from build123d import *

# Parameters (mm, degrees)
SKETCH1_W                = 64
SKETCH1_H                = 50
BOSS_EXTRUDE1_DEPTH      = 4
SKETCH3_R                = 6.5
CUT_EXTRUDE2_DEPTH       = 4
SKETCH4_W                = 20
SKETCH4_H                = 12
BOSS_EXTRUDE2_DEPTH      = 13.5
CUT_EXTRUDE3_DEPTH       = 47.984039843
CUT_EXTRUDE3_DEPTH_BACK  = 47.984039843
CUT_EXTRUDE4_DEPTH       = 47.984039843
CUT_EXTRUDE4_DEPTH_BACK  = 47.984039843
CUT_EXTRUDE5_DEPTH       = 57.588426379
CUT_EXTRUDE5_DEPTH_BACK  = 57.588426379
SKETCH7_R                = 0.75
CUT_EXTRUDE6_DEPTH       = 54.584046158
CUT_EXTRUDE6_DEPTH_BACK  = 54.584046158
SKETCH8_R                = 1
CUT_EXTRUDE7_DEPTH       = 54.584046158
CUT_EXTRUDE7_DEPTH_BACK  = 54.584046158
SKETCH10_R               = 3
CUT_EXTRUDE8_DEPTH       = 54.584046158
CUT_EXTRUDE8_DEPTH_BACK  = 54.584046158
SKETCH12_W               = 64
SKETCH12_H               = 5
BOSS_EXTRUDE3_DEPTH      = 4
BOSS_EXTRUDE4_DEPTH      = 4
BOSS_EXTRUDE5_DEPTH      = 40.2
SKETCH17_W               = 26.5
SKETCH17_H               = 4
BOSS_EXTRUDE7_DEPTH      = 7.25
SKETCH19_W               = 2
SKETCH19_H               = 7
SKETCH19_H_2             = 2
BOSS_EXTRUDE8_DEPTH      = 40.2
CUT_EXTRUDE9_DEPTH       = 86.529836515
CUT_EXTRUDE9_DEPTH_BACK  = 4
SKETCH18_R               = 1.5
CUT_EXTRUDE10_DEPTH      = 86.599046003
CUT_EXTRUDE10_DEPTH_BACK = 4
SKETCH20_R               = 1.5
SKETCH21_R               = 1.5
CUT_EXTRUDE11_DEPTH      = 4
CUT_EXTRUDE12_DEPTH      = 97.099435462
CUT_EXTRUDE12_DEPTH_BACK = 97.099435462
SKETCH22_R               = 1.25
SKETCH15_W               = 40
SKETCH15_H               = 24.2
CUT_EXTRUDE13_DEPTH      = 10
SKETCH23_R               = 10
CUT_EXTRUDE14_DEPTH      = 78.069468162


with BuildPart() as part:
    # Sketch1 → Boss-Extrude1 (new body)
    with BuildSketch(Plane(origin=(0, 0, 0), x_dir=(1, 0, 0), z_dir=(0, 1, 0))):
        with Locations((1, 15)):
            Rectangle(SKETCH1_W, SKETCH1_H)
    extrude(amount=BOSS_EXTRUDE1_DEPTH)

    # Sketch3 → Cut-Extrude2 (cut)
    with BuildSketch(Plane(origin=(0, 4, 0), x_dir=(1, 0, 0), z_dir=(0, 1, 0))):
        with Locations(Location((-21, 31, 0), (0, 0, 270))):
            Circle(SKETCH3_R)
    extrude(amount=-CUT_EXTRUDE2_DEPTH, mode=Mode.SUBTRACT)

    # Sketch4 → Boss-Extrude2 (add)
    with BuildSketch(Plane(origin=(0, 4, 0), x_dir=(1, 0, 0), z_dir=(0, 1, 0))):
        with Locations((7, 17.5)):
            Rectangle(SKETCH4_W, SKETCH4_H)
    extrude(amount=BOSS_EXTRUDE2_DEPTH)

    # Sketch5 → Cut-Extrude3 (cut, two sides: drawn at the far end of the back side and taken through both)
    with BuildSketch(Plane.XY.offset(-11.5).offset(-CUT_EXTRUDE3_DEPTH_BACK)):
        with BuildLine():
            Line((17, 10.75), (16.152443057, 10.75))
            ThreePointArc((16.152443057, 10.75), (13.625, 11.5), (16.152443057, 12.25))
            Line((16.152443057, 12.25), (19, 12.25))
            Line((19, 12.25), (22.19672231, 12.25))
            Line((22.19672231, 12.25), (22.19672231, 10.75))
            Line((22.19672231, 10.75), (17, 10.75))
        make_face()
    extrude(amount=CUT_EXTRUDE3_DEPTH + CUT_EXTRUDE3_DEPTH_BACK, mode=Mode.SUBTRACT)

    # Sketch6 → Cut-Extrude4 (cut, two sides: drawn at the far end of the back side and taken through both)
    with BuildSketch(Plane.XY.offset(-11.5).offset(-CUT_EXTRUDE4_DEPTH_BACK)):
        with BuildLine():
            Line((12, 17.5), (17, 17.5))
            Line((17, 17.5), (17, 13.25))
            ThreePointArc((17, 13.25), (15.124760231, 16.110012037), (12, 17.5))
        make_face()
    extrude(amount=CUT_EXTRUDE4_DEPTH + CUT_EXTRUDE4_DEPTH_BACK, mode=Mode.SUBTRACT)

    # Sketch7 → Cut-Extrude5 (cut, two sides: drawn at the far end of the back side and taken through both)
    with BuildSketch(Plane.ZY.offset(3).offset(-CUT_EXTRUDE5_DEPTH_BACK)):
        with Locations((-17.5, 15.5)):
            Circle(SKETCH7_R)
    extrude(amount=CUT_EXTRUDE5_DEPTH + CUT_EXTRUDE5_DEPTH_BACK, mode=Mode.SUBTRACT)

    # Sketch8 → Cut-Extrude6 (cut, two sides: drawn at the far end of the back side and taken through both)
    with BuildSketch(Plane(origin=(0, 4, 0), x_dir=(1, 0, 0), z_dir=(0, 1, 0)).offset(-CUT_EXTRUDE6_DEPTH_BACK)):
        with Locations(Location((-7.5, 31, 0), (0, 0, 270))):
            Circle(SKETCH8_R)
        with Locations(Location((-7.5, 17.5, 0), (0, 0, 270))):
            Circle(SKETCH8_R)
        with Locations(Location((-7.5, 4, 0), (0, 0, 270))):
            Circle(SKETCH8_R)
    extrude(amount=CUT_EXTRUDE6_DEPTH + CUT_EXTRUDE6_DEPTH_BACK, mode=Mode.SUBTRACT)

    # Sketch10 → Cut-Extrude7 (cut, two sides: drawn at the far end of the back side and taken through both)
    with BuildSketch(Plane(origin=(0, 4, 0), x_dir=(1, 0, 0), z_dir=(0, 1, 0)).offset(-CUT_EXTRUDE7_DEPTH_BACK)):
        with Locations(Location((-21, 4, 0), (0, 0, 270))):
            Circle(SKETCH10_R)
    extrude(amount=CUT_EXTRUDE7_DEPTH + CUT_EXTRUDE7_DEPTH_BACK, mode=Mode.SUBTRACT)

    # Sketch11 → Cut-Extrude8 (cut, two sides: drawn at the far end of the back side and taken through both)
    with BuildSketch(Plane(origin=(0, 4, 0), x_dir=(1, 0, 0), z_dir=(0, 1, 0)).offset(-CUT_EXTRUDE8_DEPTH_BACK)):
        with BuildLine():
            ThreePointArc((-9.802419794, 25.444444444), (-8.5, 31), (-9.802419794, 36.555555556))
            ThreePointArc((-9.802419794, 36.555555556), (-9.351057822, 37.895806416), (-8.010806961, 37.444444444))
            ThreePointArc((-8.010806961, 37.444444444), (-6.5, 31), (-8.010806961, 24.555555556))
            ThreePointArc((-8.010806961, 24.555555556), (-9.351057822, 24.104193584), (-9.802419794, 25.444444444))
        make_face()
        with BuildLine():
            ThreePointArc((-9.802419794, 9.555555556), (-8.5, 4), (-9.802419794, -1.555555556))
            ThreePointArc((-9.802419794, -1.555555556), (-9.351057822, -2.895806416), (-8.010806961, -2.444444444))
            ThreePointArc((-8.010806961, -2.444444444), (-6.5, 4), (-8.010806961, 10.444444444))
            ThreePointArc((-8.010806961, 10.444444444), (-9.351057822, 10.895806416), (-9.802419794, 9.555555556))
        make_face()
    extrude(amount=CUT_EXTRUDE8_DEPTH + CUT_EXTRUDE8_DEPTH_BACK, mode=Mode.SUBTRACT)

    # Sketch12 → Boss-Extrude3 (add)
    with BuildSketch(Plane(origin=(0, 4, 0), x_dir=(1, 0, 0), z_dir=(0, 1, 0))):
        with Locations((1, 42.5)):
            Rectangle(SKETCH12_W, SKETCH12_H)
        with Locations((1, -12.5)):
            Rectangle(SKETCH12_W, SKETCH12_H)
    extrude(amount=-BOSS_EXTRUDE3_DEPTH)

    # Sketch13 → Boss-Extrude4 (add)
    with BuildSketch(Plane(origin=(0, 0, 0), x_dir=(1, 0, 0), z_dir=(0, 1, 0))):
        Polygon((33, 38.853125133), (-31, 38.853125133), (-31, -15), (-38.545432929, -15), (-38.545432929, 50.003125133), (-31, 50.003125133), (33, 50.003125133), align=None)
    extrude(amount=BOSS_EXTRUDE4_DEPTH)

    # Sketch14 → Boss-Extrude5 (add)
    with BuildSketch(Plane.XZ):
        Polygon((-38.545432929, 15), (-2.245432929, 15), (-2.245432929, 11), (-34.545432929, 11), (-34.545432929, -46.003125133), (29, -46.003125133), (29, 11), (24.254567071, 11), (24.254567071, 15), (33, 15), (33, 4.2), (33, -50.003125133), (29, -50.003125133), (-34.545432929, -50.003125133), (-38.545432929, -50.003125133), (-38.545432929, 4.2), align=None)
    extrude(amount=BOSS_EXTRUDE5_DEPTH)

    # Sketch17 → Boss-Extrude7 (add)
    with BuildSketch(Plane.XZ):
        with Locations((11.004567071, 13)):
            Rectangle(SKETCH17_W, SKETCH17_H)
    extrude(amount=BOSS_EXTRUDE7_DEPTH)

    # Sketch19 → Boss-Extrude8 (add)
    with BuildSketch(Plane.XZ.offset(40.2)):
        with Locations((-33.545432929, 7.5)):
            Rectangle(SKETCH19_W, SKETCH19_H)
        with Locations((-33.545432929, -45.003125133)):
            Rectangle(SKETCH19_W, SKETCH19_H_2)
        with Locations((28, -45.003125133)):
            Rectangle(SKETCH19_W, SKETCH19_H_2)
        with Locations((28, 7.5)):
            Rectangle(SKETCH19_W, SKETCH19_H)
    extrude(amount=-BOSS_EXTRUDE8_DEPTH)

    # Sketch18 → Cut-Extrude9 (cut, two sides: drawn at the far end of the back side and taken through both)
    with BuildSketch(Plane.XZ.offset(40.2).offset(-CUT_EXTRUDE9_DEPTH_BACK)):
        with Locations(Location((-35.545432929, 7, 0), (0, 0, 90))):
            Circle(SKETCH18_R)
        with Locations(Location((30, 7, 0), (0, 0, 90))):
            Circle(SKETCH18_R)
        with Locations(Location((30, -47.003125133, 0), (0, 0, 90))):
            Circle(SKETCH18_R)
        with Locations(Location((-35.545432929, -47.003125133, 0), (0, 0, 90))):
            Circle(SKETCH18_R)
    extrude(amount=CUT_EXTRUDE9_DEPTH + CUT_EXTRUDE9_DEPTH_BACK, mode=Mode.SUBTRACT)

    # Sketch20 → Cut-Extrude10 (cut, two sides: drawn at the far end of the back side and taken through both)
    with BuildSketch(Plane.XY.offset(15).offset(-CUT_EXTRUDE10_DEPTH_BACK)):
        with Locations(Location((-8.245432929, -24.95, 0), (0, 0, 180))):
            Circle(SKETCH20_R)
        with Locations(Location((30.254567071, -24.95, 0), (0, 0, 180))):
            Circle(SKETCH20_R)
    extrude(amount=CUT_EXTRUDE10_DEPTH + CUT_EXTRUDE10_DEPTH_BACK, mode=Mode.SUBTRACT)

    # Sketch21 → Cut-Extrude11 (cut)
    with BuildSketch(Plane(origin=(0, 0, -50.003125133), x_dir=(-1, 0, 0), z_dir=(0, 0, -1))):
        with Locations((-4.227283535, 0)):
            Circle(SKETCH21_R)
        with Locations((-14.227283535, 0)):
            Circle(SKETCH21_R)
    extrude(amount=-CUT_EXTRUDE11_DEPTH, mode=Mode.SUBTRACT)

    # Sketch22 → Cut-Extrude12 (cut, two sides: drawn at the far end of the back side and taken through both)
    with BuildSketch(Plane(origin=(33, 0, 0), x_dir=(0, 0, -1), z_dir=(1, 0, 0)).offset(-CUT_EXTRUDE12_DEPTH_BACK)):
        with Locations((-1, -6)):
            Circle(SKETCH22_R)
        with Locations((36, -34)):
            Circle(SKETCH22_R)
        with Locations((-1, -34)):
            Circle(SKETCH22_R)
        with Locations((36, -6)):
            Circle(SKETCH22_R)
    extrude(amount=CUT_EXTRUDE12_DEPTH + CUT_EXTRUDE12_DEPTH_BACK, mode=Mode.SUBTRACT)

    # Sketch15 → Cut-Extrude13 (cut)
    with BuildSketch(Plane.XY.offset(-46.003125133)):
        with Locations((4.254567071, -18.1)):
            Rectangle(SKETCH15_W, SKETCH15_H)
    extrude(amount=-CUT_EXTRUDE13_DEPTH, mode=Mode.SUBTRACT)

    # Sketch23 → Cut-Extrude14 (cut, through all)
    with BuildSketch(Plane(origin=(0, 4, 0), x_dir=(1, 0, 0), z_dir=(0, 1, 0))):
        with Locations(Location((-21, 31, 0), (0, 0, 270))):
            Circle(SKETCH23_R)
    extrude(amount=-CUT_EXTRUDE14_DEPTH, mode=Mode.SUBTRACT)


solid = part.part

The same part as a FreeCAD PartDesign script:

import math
import FreeCAD as App
import Part
import Sketcher
from FreeCAD import Vector
Q = App.Units.Quantity


def add_polygon(sketch, points):
    """Adds a closed chain of lines whose ends are joined by coincident constraints."""
    first, n = sketch.GeometryCount, len(points)
    for a, b in zip(points, points[1:] + points[:1]):
        sketch.addGeometry(Part.LineSegment(App.Vector(*a, 0), App.Vector(*b, 0)), False)
    for i in range(n):
        sketch.addConstraint(Sketcher.Constraint("Coincident", first + i, 2, first + (i + 1) % n, 1))

doc = App.newDocument("Part")
body = doc.addObject("PartDesign::Body", "Body")

# Sketch on XZ plane
sketch1 = doc.addObject("Sketcher::SketchObject", "Sketch")
body.addObject(sketch1)
sketch1.AttachmentSupport = (doc.XZ_Plane, [""])
sketch1.MapMode = "FlatFace"
add_polygon(sketch1, [(-31, -40), (-31, 10), (33, 10), (33, -40)])  # lines 0-3
sketch1.addConstraint([
    Sketcher.Constraint("Vertical", 0),
    Sketcher.Constraint("Horizontal", 1),
    Sketcher.Constraint("Vertical", 2),
    Sketcher.Constraint("Horizontal", 3),
    Sketcher.Constraint("DistanceX", 1, 1, 1, 2, Q("64 mm")),
    Sketcher.Constraint("DistanceY", 0, 1, 0, 2, Q("50 mm")),
    Sketcher.Constraint("DistanceX", 0, 2, -1, 1, Q("31 mm")),
    Sketcher.Constraint("DistanceY", -1, 1, 0, 2, Q("10 mm")),
])
pad1 = doc.addObject("PartDesign::Pad", "Pad")
body.addObject(pad1)
pad1.Profile = sketch1
pad1.Length = 4
pad1.Reversed = True

# Sketch on XZ plane
sketch2 = doc.addObject("Sketcher::SketchObject", "Sketch001")
body.addObject(sketch2)
sketch2.AttachmentSupport = (doc.XZ_Plane, [""])
sketch2.MapMode = "FlatFace"
sketch2.AttachmentOffset = App.Placement(Vector(0, 0, -4), App.Rotation())
sketch2.addGeometry(Part.Circle(Vector(-21, -31, 0), Vector(0, 0, 1), 6), False)
sketch2.addConstraint([
    Sketcher.Constraint("Diameter", 0, Q("13 mm")),
    Sketcher.Constraint("DistanceX", 0, 3, -1, 1, Q("21 mm")),
    Sketcher.Constraint("DistanceY", 0, 3, -1, 1, Q("31 mm")),
])
pocket1 = doc.addObject("PartDesign::Pocket", "Pocket")
body.addObject(pocket1)
pocket1.Profile = sketch2
pocket1.Length = 4
pocket1.Reversed = True

# Sketch on XZ plane
sketch3 = doc.addObject("Sketcher::SketchObject", "Sketch002")
body.addObject(sketch3)
sketch3.AttachmentSupport = (doc.XZ_Plane, [""])
sketch3.MapMode = "FlatFace"
sketch3.AttachmentOffset = App.Placement(Vector(0, 0, -4), App.Rotation())
add_polygon(sketch3, [(-3, -24), (-3, -12), (17, -12), (17, -24)])  # lines 0-3
sketch3.addConstraint([
    Sketcher.Constraint("Vertical", 0),
    Sketcher.Constraint("Horizontal", 1),
    Sketcher.Constraint("Vertical", 2),
    Sketcher.Constraint("Horizontal", 3),
    Sketcher.Constraint("DistanceX", 1, 1, 1, 2, Q("20 mm")),
    Sketcher.Constraint("DistanceY", 0, 1, 0, 2, Q("12 mm")),
    Sketcher.Constraint("DistanceX", 0, 2, -1, 1, Q("3 mm")),
    Sketcher.Constraint("DistanceY", 0, 2, -1, 1, Q("11.5 mm")),
])
pad2 = doc.addObject("PartDesign::Pad", "Pad001")
body.addObject(pad2)
pad2.Profile = sketch3
pad2.Length = 13.5
pad2.Reversed = True

# Sketch on XY plane
sketch4 = doc.addObject("Sketcher::SketchObject", "Sketch003")
body.addObject(sketch4)
sketch4.AttachmentSupport = (doc.XY_Plane, [""])
sketch4.MapMode = "FlatFace"
sketch4.AttachmentOffset = App.Placement(Vector(0, 0, -11.5), App.Rotation())
sketch4.addGeometry([
    Part.ArcOfCircle(Part.Circle(Vector(15, 11.5, 0), Vector(0, 0, 1), 1.4), math.radians(33), math.radians(327)),
    Part.LineSegment(Vector(16.2, 10.8, 0), Vector(22.2, 10.8, 0)),
    Part.LineSegment(Vector(22.2, 10.8, 0), Vector(22.2, 12.2, 0)),
    Part.LineSegment(Vector(22.2, 12.2, 0), Vector(16.2, 12.2, 0)),
], False)
sketch4.addConstraint([
    Sketcher.Constraint("Coincident", 0, 2, 1, 1),
    Sketcher.Constraint("Coincident", 1, 2, 2, 1),
    Sketcher.Constraint("Coincident", 2, 2, 3, 1),
    Sketcher.Constraint("Coincident", 3, 2, 0, 1),
    Sketcher.Constraint("Horizontal", 1),
    Sketcher.Constraint("Vertical", 2),
    Sketcher.Constraint("Horizontal", 3),
    Sketcher.Constraint("Vertical", 0, 2, 3, 2),
    Sketcher.Constraint("DistanceY", 2, 1, 2, 2, Q("1.5 mm")),
    Sketcher.Constraint("DistanceX", -1, 1, 0, 3, Q("15 mm")),
    Sketcher.Constraint("Radius", 0, Q("1.375 mm")),
    Sketcher.Constraint("DistanceY", -1, 1, 0, 3, Q("11.5 mm")),
    Sketcher.Constraint("DistanceX", 1, 1, 1, 2, Q("6.044279 mm")),
])
pocket2 = doc.addObject("PartDesign::Pocket", "Pocket001")
body.addObject(pocket2)
pocket2.Profile = sketch4
pocket2.Type = "ThroughAll"
pocket2.Midplane = True

# Sketch on XY plane
sketch5 = doc.addObject("Sketcher::SketchObject", "Sketch004")
body.addObject(sketch5)
sketch5.AttachmentSupport = (doc.XY_Plane, [""])
sketch5.MapMode = "FlatFace"
sketch5.AttachmentOffset = App.Placement(Vector(0, 0, -11.5), App.Rotation())
sketch5.addGeometry([
    Part.LineSegment(Vector(17, 17.5, 0), Vector(12, 17.5, 0)),
    Part.ArcOfCircle(Part.Circle(Vector(11.2, 11.5, 0), Vector(0, 0, 1), 6.1), math.radians(17), math.radians(82)),
    Part.LineSegment(Vector(17, 13.2, 0), Vector(17, 17.5, 0)),
], False)
sketch5.addConstraint([
    Sketcher.Constraint("Coincident", 0, 2, 1, 2),
    Sketcher.Constraint("Coincident", 1, 1, 2, 1),
    Sketcher.Constraint("Coincident", 2, 2, 0, 1),
    Sketcher.Constraint("Horizontal", 0),
    Sketcher.Constraint("Vertical", 2),
    Sketcher.Constraint("DistanceX", 0, 2, 0, 1, Q("5 mm")),
    Sketcher.Constraint("DistanceX", -1, 1, 0, 2, Q("12 mm")),
    Sketcher.Constraint("DistanceY", 2, 1, 2, 2, Q("4.25 mm")),
    Sketcher.Constraint("DistanceY", -1, 1, 0, 2, Q("17.5 mm")),
    Sketcher.Constraint("Radius", 1, Q("6.062342 mm")),
])
pocket3 = doc.addObject("PartDesign::Pocket", "Pocket002")
body.addObject(pocket3)
pocket3.Profile = sketch5
pocket3.Type = "ThroughAll"
pocket3.Midplane = True

# Sketch on YZ plane
sketch6 = doc.addObject("Sketcher::SketchObject", "Sketch005")
body.addObject(sketch6)
sketch6.AttachmentSupport = (doc.YZ_Plane, [""])
sketch6.MapMode = "FlatFace"
sketch6.AttachmentOffset = App.Placement(Vector(0, 0, -3), App.Rotation())
sketch6.addGeometry(Part.Circle(Vector(15.5, -17.5, 0), Vector(0, 0, 1), 0.8), False)
sketch6.addConstraint([
    Sketcher.Constraint("Diameter", 0, Q("1.5 mm")),
    Sketcher.Constraint("DistanceX", -1, 1, 0, 3, Q("15.5 mm")),
    Sketcher.Constraint("DistanceY", 0, 3, -1, 1, Q("17.5 mm")),
])
pocket4 = doc.addObject("PartDesign::Pocket", "Pocket003")
body.addObject(pocket4)
pocket4.Profile = sketch6
pocket4.Type = "ThroughAll"
pocket4.Midplane = True

# Sketch on XZ plane
sketch7 = doc.addObject("Sketcher::SketchObject", "Sketch006")
body.addObject(sketch7)
sketch7.AttachmentSupport = (doc.XZ_Plane, [""])
sketch7.MapMode = "FlatFace"
sketch7.AttachmentOffset = App.Placement(Vector(0, 0, -4), App.Rotation())
sketch7.addGeometry([
    Part.Circle(Vector(-7.5, -31, 0), Vector(0, 0, 1), 1),
    Part.Circle(Vector(-7.5, -17.5, 0), Vector(0, 0, 1), 1),
    Part.Circle(Vector(-7.5, -4, 0), Vector(0, 0, 1), 1),
], False)
sketch7.addConstraint([
    Sketcher.Constraint("Equal", 0, 1),
    Sketcher.Constraint("Equal", 1, 2),
    Sketcher.Constraint("Vertical", 0, 3, 1, 3),
    Sketcher.Constraint("Vertical", 1, 3, 2, 3),
    Sketcher.Constraint("Diameter", 0, Q("2 mm")),
    Sketcher.Constraint("DistanceY", 0, 3, -1, 1, Q("31 mm")),
    Sketcher.Constraint("DistanceY", 2, 3, -1, 1, Q("4 mm")),
    Sketcher.Constraint("DistanceX", 0, 3, -1, 1, Q("7.5 mm")),
    Sketcher.Constraint("DistanceY", 1, 3, -1, 1, Q("17.5 mm")),
])
pocket5 = doc.addObject("PartDesign::Pocket", "Pocket004")
body.addObject(pocket5)
pocket5.Profile = sketch7
pocket5.Type = "ThroughAll"
pocket5.Midplane = True

# Sketch on XZ plane
sketch8 = doc.addObject("Sketcher::SketchObject", "Sketch007")
body.addObject(sketch8)
sketch8.AttachmentSupport = (doc.XZ_Plane, [""])
sketch8.MapMode = "FlatFace"
sketch8.AttachmentOffset = App.Placement(Vector(0, 0, -4), App.Rotation())
sketch8.addGeometry(Part.Circle(Vector(-21, -4, 0), Vector(0, 0, 1), 3), False)
sketch8.addConstraint([
    Sketcher.Constraint("Diameter", 0, Q("6 mm")),
    Sketcher.Constraint("DistanceX", 0, 3, -1, 1, Q("21 mm")),
    Sketcher.Constraint("DistanceY", 0, 3, -1, 1, Q("4 mm")),
])
pocket6 = doc.addObject("PartDesign::Pocket", "Pocket005")
body.addObject(pocket6)
pocket6.Profile = sketch8
pocket6.Type = "ThroughAll"
pocket6.Midplane = True

# Sketch on XZ plane
sketch9 = doc.addObject("Sketcher::SketchObject", "Sketch008")
body.addObject(sketch9)
sketch9.AttachmentSupport = (doc.XZ_Plane, [""])
sketch9.MapMode = "FlatFace"
sketch9.AttachmentOffset = App.Placement(Vector(0, 0, -4), App.Rotation())
sketch9.addGeometry([
    Part.ArcOfCircle(Part.Circle(Vector(-21, -31, 0), Vector(0, 0, 1), 12.5), math.radians(-26), math.radians(26)),  # 0
    Part.ArcOfCircle(Part.Circle(Vector(-8.9, -25, 0), Vector(0, 0, 1), 1), math.radians(26), math.radians(206)),  # 1
    Part.ArcOfCircle(Part.Circle(Vector(-21, -31, 0), Vector(0, 0, 1), 14.5), math.radians(-26), math.radians(26)),  # 2
    Part.ArcOfCircle(Part.Circle(Vector(-8.9, -37, 0), Vector(0, 0, 1), 1), math.radians(154), math.radians(334)),  # 3
    Part.ArcOfCircle(Part.Circle(Vector(-21, -4, 0), Vector(0, 0, 1), 12.5), math.radians(-26), math.radians(26)),  # 4
    Part.ArcOfCircle(Part.Circle(Vector(-8.9, 2, 0), Vector(0, 0, 1), 1), math.radians(26), math.radians(206)),  # 5
    Part.ArcOfCircle(Part.Circle(Vector(-21, -4, 0), Vector(0, 0, 1), 14.5), math.radians(-26), math.radians(26)),  # 6
    Part.ArcOfCircle(Part.Circle(Vector(-8.9, -10, 0), Vector(0, 0, 1), 1), math.radians(154), math.radians(334)),  # 7
], False)
sketch9.addConstraint([
    Sketcher.Constraint("Tangent", 0, 2, 1, 2),
    Sketcher.Constraint("Tangent", 1, 1, 2, 2),
    Sketcher.Constraint("Tangent", 2, 1, 3, 2),
    Sketcher.Constraint("Tangent", 3, 1, 0, 1),
    Sketcher.Constraint("Tangent", 4, 2, 5, 2),
    Sketcher.Constraint("Tangent", 5, 1, 6, 2),
    Sketcher.Constraint("Tangent", 6, 1, 7, 2),
    Sketcher.Constraint("Tangent", 7, 1, 4, 1),
    Sketcher.Constraint("Coincident", 2, 3, 0, 3),
    Sketcher.Constraint("Coincident", 6, 3, 4, 3),
    Sketcher.Constraint("Equal", 0, 4),
    Sketcher.Constraint("Equal", 3, 5),
    Sketcher.Constraint("Vertical", 1, 3, 3, 3),
    Sketcher.Constraint("Vertical", 2, 3, 4, 3),
    Sketcher.Constraint("Vertical", 3, 3, 5, 3),
    Sketcher.Constraint("Vertical", 5, 3, 7, 3),
    Sketcher.Constraint("Radius", 1, Q("1 mm")),
    Sketcher.Constraint("Radius", 0, Q("12.5 mm")),
    Sketcher.Constraint("DistanceX", 0, 3, -1, 1, Q("21 mm")),
    Sketcher.Constraint("DistanceY", 0, 3, -1, 1, Q("31 mm")),
    Sketcher.Constraint("DistanceY", 1, 3, -1, 1, Q("25 mm")),
    Sketcher.Constraint("DistanceY", 4, 3, -1, 1, Q("4 mm")),
])
pocket7 = doc.addObject("PartDesign::Pocket", "Pocket006")
body.addObject(pocket7)
pocket7.Profile = sketch9
pocket7.Type = "ThroughAll"
pocket7.Midplane = True

# Sketch on XZ plane
sketch10 = doc.addObject("Sketcher::SketchObject", "Sketch009")
body.addObject(sketch10)
sketch10.AttachmentSupport = (doc.XZ_Plane, [""])
sketch10.MapMode = "FlatFace"
sketch10.AttachmentOffset = App.Placement(Vector(0, 0, -4), App.Rotation())
add_polygon(sketch10, [(-31, -45), (-31, -40), (33, -40), (33, -45)])  # lines 0-3
add_polygon(sketch10, [(-31, 10), (-31, 15), (33, 15), (33, 10)])  # lines 4-7
sketch10.addConstraint([
    Sketcher.Constraint("Vertical", 0),
    Sketcher.Constraint("Horizontal", 1),
    Sketcher.Constraint("Vertical", 2),
    Sketcher.Constraint("Horizontal", 3),
    Sketcher.Constraint("Vertical", 4),
    Sketcher.Constraint("Horizontal", 5),
    Sketcher.Constraint("Vertical", 6),
    Sketcher.Constraint("Horizontal", 7),
    Sketcher.Constraint("Vertical", 3, 2, 4, 2),
    Sketcher.Constraint("Vertical", 2, 2, 5, 2),
    Sketcher.Constraint("Equal", 2, 4),
    Sketcher.Constraint("DistanceX", 1, 1, 1, 2, Q("64 mm")),
    Sketcher.Constraint("DistanceY", 0, 1, 0, 2, Q("5 mm")),
    Sketcher.Constraint("DistanceX", 0, 2, -1, 1, Q("31 mm")),
    Sketcher.Constraint("DistanceY", 0, 2, -1, 1, Q("40 mm")),
    Sketcher.Constraint("DistanceY", -1, 1, 4, 2, Q("15 mm")),
])
pad3 = doc.addObject("PartDesign::Pad", "Pad002")
body.addObject(pad3)
pad3.Profile = sketch10
pad3.Length = 4

# Sketch on XZ plane
sketch11 = doc.addObject("Sketcher::SketchObject", "Sketch010")
body.addObject(sketch11)
sketch11.AttachmentSupport = (doc.XZ_Plane, [""])
sketch11.MapMode = "FlatFace"
add_polygon(sketch11, [(-31, -39), (33, -39), (33, -50), (-39, -50), (-39, 15), (-31, 15)])  # lines 0-5
sketch11.addConstraint([
    Sketcher.Constraint("Horizontal", 0),
    Sketcher.Constraint("Vertical", 1),
    Sketcher.Constraint("Horizontal", 2),
    Sketcher.Constraint("Vertical", 3),
    Sketcher.Constraint("Horizontal", 4),
    Sketcher.Constraint("Vertical", 5),
    Sketcher.Constraint("DistanceX", 0, 1, 0, 2, Q("64 mm")),
    Sketcher.Constraint("DistanceX", -1, 1, 0, 2, Q("33 mm")),
    Sketcher.Constraint("DistanceY", -1, 1, 3, 2, Q("15 mm")),
    Sketcher.Constraint("DistanceY", 1, 2, 1, 1, Q("11.15 mm")),
    Sketcher.Constraint("DistanceX", 2, 2, 2, 1, Q("71.545433 mm")),
    Sketcher.Constraint("DistanceY", 3, 1, 3, 2, Q("65.003125 mm")),
])
pad4 = doc.addObject("PartDesign::Pad", "Pad003")
body.addObject(pad4)
pad4.Profile = sketch11
pad4.Length = 4
pad4.Reversed = True

# Sketch on XZ plane
sketch12 = doc.addObject("Sketcher::SketchObject", "Sketch011")
body.addObject(sketch12)
sketch12.AttachmentSupport = (doc.XZ_Plane, [""])
sketch12.MapMode = "FlatFace"
add_polygon(sketch12, [(-2.2, 15), (-38.5, 15), (-38.5, -50), (33, -50), (33, 15), (24.3, 15), (24.3, 11), (29, 11), (29, -46), (-34.5, -46), (-34.5, 11), (-2.2, 11)])  # lines 0-11
sketch12.addConstraint([
    Sketcher.Constraint("Horizontal", 0),
    Sketcher.Constraint("Vertical", 1),
    Sketcher.Constraint("Horizontal", 2),
    Sketcher.Constraint("Vertical", 3),
    Sketcher.Constraint("Horizontal", 4),
    Sketcher.Constraint("Vertical", 5),
    Sketcher.Constraint("Horizontal", 6),
    Sketcher.Constraint("Vertical", 7),
    Sketcher.Constraint("Horizontal", 8),
    Sketcher.Constraint("Vertical", 9),
    Sketcher.Constraint("Horizontal", 10),
    Sketcher.Constraint("Vertical", 11),
    Sketcher.Constraint("Horizontal", 0, 2, 3, 2),
    Sketcher.Constraint("Horizontal", 6, 2, 9, 2),
    Sketcher.Constraint("DistanceY", 5, 2, 5, 1, Q("4 mm")),
    Sketcher.Constraint("DistanceX", 0, 2, 0, 1, Q("36.3 mm")),
    Sketcher.Constraint("DistanceX", 10, 1, 10, 2, Q("32.3 mm")),
    Sketcher.Constraint("DistanceY", -1, 1, 0, 2, Q("15 mm")),
    Sketcher.Constraint("DistanceX", -1, 1, 2, 2, Q("33 mm")),
    Sketcher.Constraint("DistanceX", -1, 1, 6, 2, Q("29 mm")),
    Sketcher.Constraint("DistanceY", 2, 2, 7, 2, Q("4 mm")),
    Sketcher.Constraint("DistanceX", 0, 2, 4, 2, Q("62.8 mm")),
    Sketcher.Constraint("DistanceX", 2, 1, 2, 2, Q("71.545433 mm")),
    Sketcher.Constraint("DistanceY", 1, 2, 1, 1, Q("65.003125 mm")),
])
pad5 = doc.addObject("PartDesign::Pad", "Pad004")
body.addObject(pad5)
pad5.Profile = sketch12
pad5.Length = 40.2

# Sketch on XZ plane
sketch13 = doc.addObject("Sketcher::SketchObject", "Sketch012")
body.addObject(sketch13)
sketch13.AttachmentSupport = (doc.XZ_Plane, [""])
sketch13.MapMode = "FlatFace"
add_polygon(sketch13, [(-2.2, 15), (-2.2, 11), (24.3, 11), (24.3, 15)])  # lines 0-3
sketch13.addConstraint([
    Sketcher.Constraint("Vertical", 0),
    Sketcher.Constraint("Horizontal", 1),
    Sketcher.Constraint("Vertical", 2),
    Sketcher.Constraint("Horizontal", 3),
    Sketcher.Constraint("DistanceY", 0, 2, 0, 1, Q("4 mm")),
    Sketcher.Constraint("DistanceX", 1, 1, 1, 2, Q("26.5 mm")),
    Sketcher.Constraint("DistanceY", -1, 1, 0, 2, Q("11 mm")),
    Sketcher.Constraint("DistanceX", 0, 2, -1, 1, Q("2.245433 mm")),
])
pad6 = doc.addObject("PartDesign::Pad", "Pad005")
body.addObject(pad6)
pad6.Profile = sketch13
pad6.Length = 7.25

# Sketch on XZ plane
sketch14 = doc.addObject("Sketcher::SketchObject", "Sketch013")
body.addObject(sketch14)
sketch14.AttachmentSupport = (doc.XZ_Plane, [""])
sketch14.MapMode = "FlatFace"
sketch14.AttachmentOffset = App.Placement(Vector(0, 0, 40.2), App.Rotation())
add_polygon(sketch14, [(-34.5, 11), (-34.5, 4), (-32.5, 4), (-32.5, 11)])  # lines 0-3
add_polygon(sketch14, [(-34.5, -44), (-34.5, -46), (-32.5, -46), (-32.5, -44)])  # lines 4-7
add_polygon(sketch14, [(27, -44), (27, -46), (29, -46), (29, -44)])  # lines 8-11
add_polygon(sketch14, [(27, 11), (27, 4), (29, 4), (29, 11)])  # lines 12-15
sketch14.addConstraint([
    Sketcher.Constraint("Vertical", 0),
    Sketcher.Constraint("Horizontal", 1),
    Sketcher.Constraint("Vertical", 2),
    Sketcher.Constraint("Horizontal", 3),
    Sketcher.Constraint("Vertical", 4),
    Sketcher.Constraint("Horizontal", 5),
    Sketcher.Constraint("Vertical", 6),
    Sketcher.Constraint("Horizontal", 7),
    Sketcher.Constraint("Vertical", 8),
    Sketcher.Constraint("Horizontal", 9),
    Sketcher.Constraint("Vertical", 10),
    Sketcher.Constraint("Horizontal", 11),
    Sketcher.Constraint("Vertical", 12),
    Sketcher.Constraint("Horizontal", 13),
    Sketcher.Constraint("Vertical", 14),
    Sketcher.Constraint("Horizontal", 15),
    Sketcher.Constraint("Horizontal", 5, 2, 8, 2),
    Sketcher.Constraint("Horizontal", 7, 2, 10, 2),
    Sketcher.Constraint("Horizontal", 1, 2, 12, 2),
    Sketcher.Constraint("Horizontal", 3, 2, 14, 2),
    Sketcher.Constraint("Vertical", 3, 2, 4, 2),
    Sketcher.Constraint("Vertical", 2, 2, 5, 2),
    Sketcher.Constraint("Vertical", 11, 2, 12, 2),
    Sketcher.Constraint("Vertical", 10, 2, 13, 2),
    Sketcher.Constraint("Equal", 7, 9),
    Sketcher.Constraint("Equal", 15, 4),
    Sketcher.Constraint("DistanceX", 1, 1, 1, 2, Q("2 mm")),
    Sketcher.Constraint("DistanceY", 0, 2, 0, 1, Q("7 mm")),
    Sketcher.Constraint("DistanceY", -1, 1, 0, 2, Q("4 mm")),
    Sketcher.Constraint("DistanceX", -1, 1, 8, 2, Q("27 mm")),
    Sketcher.Constraint("DistanceX", 0, 2, -1, 1, Q("34.545433 mm")),
    Sketcher.Constraint("DistanceY", 4, 2, -1, 1, Q("46.003125 mm")),
])
pad7 = doc.addObject("PartDesign::Pad", "Pad006")
body.addObject(pad7)
pad7.Profile = sketch14
pad7.Length = 40.2
pad7.Reversed = True

# Sketch on XZ plane
sketch15 = doc.addObject("Sketcher::SketchObject", "Sketch014")
body.addObject(sketch15)
sketch15.AttachmentSupport = (doc.XZ_Plane, [""])
sketch15.MapMode = "FlatFace"
sketch15.AttachmentOffset = App.Placement(Vector(0, 0, 40.2), App.Rotation())
sketch15.addGeometry([
    Part.Circle(Vector(-35.5, 7, 0), Vector(0, 0, 1), 1.5),
    Part.Circle(Vector(30, 7, 0), Vector(0, 0, 1), 1.5),
    Part.Circle(Vector(30, -47, 0), Vector(0, 0, 1), 1.5),
    Part.Circle(Vector(-35.5, -47, 0), Vector(0, 0, 1), 1.5),
], False)
sketch15.addConstraint([
    Sketcher.Constraint("Equal", 0, 1),
    Sketcher.Constraint("Equal", 1, 2),
    Sketcher.Constraint("Equal", 2, 3),
    Sketcher.Constraint("Horizontal", 0, 3, 1, 3),
    Sketcher.Constraint("Horizontal", 2, 3, 3, 3),
    Sketcher.Constraint("Vertical", 1, 3, 2, 3),
    Sketcher.Constraint("Vertical", 0, 3, 3, 3),
    Sketcher.Constraint("Diameter", 0, Q("3 mm")),
    Sketcher.Constraint("DistanceY", -1, 1, 0, 3, Q("7 mm")),
    Sketcher.Constraint("DistanceX", -1, 1, 1, 3, Q("30 mm")),
    Sketcher.Constraint("DistanceX", 0, 3, -1, 1, Q("35.545433 mm")),
    Sketcher.Constraint("DistanceY", 2, 3, -1, 1, Q("47.003125 mm")),
])
pocket8 = doc.addObject("PartDesign::Pocket", "Pocket007")
body.addObject(pocket8)
pocket8.Profile = sketch15
pocket8.Type = "TwoLengths"
pocket8.Length = 86.529837
pocket8.Length2 = 4
pocket8.Reversed = True

# Sketch on XY plane
sketch16 = doc.addObject("Sketcher::SketchObject", "Sketch015")
body.addObject(sketch16)
sketch16.AttachmentSupport = (doc.XY_Plane, [""])
sketch16.MapMode = "FlatFace"
sketch16.AttachmentOffset = App.Placement(Vector(0, 0, 15), App.Rotation())
sketch16.addGeometry([
    Part.Circle(Vector(-8.2, -24.9, 0), Vector(0, 0, 1), 1.5),
    Part.Circle(Vector(30.3, -24.9, 0), Vector(0, 0, 1), 1.5),
], False)
sketch16.addConstraint([
    Sketcher.Constraint("Equal", 0, 1),
    Sketcher.Constraint("Horizontal", 0, 3, 1, 3),
    Sketcher.Constraint("Diameter", 0, Q("3 mm")),
    Sketcher.Constraint("DistanceX", 0, 3, 1, 3, Q("38.5 mm")),
    Sketcher.Constraint("DistanceY", 0, 3, -1, 1, Q("24.95 mm")),
    Sketcher.Constraint("DistanceX", 0, 3, -1, 1, Q("8.245433 mm")),
])
pocket9 = doc.addObject("PartDesign::Pocket", "Pocket008")
body.addObject(pocket9)
pocket9.Profile = sketch16
pocket9.Type = "TwoLengths"
pocket9.Length = 86.599046
pocket9.Length2 = 4
pocket9.Reversed = True

# Sketch on XY plane
sketch17 = doc.addObject("Sketcher::SketchObject", "Sketch016")
body.addObject(sketch17)
sketch17.AttachmentSupport = (doc.XY_Plane, [""])
sketch17.MapMode = "FlatFace"
sketch17.AttachmentOffset = App.Placement(Vector(0, 0, -50.003125), App.Rotation())
sketch17.addGeometry([
    Part.Circle(Vector(4.2, 0, 0), Vector(0, 0, 1), 1.5),
    Part.Circle(Vector(14.2, 0, 0), Vector(0, 0, 1), 1.5),
], False)
sketch17.addConstraint([
    Sketcher.Constraint("Equal", 0, 1),
    Sketcher.Constraint("PointOnObject", 0, 3, -1),
    Sketcher.Constraint("PointOnObject", 1, 3, -1),
    Sketcher.Constraint("Diameter", 0, Q("3 mm")),
    Sketcher.Constraint("DistanceX", 0, 3, 1, 3, Q("10 mm")),
    Sketcher.Constraint("DistanceX", -1, 1, 0, 3, Q("4.227284 mm")),
])
pocket10 = doc.addObject("PartDesign::Pocket", "Pocket009")
body.addObject(pocket10)
pocket10.Profile = sketch17
pocket10.Length = 4
pocket10.Reversed = True

# Sketch on YZ plane
sketch18 = doc.addObject("Sketcher::SketchObject", "Sketch017")
body.addObject(sketch18)
sketch18.AttachmentSupport = (doc.YZ_Plane, [""])
sketch18.MapMode = "FlatFace"
sketch18.AttachmentOffset = App.Placement(Vector(0, 0, 33), App.Rotation())
sketch18.addGeometry([
    Part.Circle(Vector(-6, 1, 0), Vector(0, 0, 1), 1.2),
    Part.Circle(Vector(-34, -36, 0), Vector(0, 0, 1), 1.2),
    Part.Circle(Vector(-34, 1, 0), Vector(0, 0, 1), 1.2),
    Part.Circle(Vector(-6, -36, 0), Vector(0, 0, 1), 1.2),
], False)
sketch18.addConstraint([
    Sketcher.Constraint("Equal", 0, 1),
    Sketcher.Constraint("Equal", 1, 2),
    Sketcher.Constraint("Equal", 2, 3),
    Sketcher.Constraint("Horizontal", 0, 3, 2, 3),
    Sketcher.Constraint("Horizontal", 1, 3, 3, 3),
    Sketcher.Constraint("Vertical", 1, 3, 2, 3),
    Sketcher.Constraint("Vertical", 0, 3, 3, 3),
    Sketcher.Constraint("Diameter", 0, Q("2.5 mm")),
    Sketcher.Constraint("DistanceX", 0, 3, -1, 1, Q("6 mm")),
    Sketcher.Constraint("DistanceY", -1, 1, 0, 3, Q("1 mm")),
    Sketcher.Constraint("DistanceX", 1, 3, -1, 1, Q("34 mm")),
    Sketcher.Constraint("DistanceY", 1, 3, -1, 1, Q("36 mm")),
])
pocket11 = doc.addObject("PartDesign::Pocket", "Pocket010")
body.addObject(pocket11)
pocket11.Profile = sketch18
pocket11.Type = "ThroughAll"
pocket11.Midplane = True

# Sketch on XY plane
sketch19 = doc.addObject("Sketcher::SketchObject", "Sketch018")
body.addObject(sketch19)
sketch19.AttachmentSupport = (doc.XY_Plane, [""])
sketch19.MapMode = "FlatFace"
sketch19.AttachmentOffset = App.Placement(Vector(0, 0, -46.003125), App.Rotation())
add_polygon(sketch19, [(-16, -6), (-16, -30), (24, -30), (24, -6)])  # lines 0-3
sketch19.addConstraint([
    Sketcher.Constraint("Vertical", 0),
    Sketcher.Constraint("Horizontal", 1),
    Sketcher.Constraint("Vertical", 2),
    Sketcher.Constraint("Horizontal", 3),
    Sketcher.Constraint("DistanceX", 1, 1, 1, 2, Q("40 mm")),
    Sketcher.Constraint("DistanceY", 0, 2, 0, 1, Q("24.2 mm")),
    Sketcher.Constraint("DistanceY", 2, 2, -1, 1, Q("6 mm")),
    Sketcher.Constraint("DistanceX", 0, 2, -1, 1, Q("15.745433 mm")),
])
pocket12 = doc.addObject("PartDesign::Pocket", "Pocket011")
body.addObject(pocket12)
pocket12.Profile = sketch19
pocket12.Length = 10

# Sketch on XZ plane
sketch20 = doc.addObject("Sketcher::SketchObject", "Sketch019")
body.addObject(sketch20)
sketch20.AttachmentSupport = (doc.XZ_Plane, [""])
sketch20.MapMode = "FlatFace"
sketch20.AttachmentOffset = App.Placement(Vector(0, 0, -4), App.Rotation())
sketch20.addGeometry(Part.Circle(Vector(-21, -31, 0), Vector(0, 0, 1), 10), False)
sketch20.addConstraint([
    Sketcher.Constraint("Diameter", 0, Q("20 mm")),
    Sketcher.Constraint("DistanceX", 0, 3, -1, 1, Q("21 mm")),
    Sketcher.Constraint("DistanceY", 0, 3, -1, 1, Q("31 mm")),
])
pocket13 = doc.addObject("PartDesign::Pocket", "Pocket012")
body.addObject(pocket13)
pocket13.Profile = sketch20
pocket13.Type = "ThroughAll"
pocket13.Reversed = True

doc.recompute()
